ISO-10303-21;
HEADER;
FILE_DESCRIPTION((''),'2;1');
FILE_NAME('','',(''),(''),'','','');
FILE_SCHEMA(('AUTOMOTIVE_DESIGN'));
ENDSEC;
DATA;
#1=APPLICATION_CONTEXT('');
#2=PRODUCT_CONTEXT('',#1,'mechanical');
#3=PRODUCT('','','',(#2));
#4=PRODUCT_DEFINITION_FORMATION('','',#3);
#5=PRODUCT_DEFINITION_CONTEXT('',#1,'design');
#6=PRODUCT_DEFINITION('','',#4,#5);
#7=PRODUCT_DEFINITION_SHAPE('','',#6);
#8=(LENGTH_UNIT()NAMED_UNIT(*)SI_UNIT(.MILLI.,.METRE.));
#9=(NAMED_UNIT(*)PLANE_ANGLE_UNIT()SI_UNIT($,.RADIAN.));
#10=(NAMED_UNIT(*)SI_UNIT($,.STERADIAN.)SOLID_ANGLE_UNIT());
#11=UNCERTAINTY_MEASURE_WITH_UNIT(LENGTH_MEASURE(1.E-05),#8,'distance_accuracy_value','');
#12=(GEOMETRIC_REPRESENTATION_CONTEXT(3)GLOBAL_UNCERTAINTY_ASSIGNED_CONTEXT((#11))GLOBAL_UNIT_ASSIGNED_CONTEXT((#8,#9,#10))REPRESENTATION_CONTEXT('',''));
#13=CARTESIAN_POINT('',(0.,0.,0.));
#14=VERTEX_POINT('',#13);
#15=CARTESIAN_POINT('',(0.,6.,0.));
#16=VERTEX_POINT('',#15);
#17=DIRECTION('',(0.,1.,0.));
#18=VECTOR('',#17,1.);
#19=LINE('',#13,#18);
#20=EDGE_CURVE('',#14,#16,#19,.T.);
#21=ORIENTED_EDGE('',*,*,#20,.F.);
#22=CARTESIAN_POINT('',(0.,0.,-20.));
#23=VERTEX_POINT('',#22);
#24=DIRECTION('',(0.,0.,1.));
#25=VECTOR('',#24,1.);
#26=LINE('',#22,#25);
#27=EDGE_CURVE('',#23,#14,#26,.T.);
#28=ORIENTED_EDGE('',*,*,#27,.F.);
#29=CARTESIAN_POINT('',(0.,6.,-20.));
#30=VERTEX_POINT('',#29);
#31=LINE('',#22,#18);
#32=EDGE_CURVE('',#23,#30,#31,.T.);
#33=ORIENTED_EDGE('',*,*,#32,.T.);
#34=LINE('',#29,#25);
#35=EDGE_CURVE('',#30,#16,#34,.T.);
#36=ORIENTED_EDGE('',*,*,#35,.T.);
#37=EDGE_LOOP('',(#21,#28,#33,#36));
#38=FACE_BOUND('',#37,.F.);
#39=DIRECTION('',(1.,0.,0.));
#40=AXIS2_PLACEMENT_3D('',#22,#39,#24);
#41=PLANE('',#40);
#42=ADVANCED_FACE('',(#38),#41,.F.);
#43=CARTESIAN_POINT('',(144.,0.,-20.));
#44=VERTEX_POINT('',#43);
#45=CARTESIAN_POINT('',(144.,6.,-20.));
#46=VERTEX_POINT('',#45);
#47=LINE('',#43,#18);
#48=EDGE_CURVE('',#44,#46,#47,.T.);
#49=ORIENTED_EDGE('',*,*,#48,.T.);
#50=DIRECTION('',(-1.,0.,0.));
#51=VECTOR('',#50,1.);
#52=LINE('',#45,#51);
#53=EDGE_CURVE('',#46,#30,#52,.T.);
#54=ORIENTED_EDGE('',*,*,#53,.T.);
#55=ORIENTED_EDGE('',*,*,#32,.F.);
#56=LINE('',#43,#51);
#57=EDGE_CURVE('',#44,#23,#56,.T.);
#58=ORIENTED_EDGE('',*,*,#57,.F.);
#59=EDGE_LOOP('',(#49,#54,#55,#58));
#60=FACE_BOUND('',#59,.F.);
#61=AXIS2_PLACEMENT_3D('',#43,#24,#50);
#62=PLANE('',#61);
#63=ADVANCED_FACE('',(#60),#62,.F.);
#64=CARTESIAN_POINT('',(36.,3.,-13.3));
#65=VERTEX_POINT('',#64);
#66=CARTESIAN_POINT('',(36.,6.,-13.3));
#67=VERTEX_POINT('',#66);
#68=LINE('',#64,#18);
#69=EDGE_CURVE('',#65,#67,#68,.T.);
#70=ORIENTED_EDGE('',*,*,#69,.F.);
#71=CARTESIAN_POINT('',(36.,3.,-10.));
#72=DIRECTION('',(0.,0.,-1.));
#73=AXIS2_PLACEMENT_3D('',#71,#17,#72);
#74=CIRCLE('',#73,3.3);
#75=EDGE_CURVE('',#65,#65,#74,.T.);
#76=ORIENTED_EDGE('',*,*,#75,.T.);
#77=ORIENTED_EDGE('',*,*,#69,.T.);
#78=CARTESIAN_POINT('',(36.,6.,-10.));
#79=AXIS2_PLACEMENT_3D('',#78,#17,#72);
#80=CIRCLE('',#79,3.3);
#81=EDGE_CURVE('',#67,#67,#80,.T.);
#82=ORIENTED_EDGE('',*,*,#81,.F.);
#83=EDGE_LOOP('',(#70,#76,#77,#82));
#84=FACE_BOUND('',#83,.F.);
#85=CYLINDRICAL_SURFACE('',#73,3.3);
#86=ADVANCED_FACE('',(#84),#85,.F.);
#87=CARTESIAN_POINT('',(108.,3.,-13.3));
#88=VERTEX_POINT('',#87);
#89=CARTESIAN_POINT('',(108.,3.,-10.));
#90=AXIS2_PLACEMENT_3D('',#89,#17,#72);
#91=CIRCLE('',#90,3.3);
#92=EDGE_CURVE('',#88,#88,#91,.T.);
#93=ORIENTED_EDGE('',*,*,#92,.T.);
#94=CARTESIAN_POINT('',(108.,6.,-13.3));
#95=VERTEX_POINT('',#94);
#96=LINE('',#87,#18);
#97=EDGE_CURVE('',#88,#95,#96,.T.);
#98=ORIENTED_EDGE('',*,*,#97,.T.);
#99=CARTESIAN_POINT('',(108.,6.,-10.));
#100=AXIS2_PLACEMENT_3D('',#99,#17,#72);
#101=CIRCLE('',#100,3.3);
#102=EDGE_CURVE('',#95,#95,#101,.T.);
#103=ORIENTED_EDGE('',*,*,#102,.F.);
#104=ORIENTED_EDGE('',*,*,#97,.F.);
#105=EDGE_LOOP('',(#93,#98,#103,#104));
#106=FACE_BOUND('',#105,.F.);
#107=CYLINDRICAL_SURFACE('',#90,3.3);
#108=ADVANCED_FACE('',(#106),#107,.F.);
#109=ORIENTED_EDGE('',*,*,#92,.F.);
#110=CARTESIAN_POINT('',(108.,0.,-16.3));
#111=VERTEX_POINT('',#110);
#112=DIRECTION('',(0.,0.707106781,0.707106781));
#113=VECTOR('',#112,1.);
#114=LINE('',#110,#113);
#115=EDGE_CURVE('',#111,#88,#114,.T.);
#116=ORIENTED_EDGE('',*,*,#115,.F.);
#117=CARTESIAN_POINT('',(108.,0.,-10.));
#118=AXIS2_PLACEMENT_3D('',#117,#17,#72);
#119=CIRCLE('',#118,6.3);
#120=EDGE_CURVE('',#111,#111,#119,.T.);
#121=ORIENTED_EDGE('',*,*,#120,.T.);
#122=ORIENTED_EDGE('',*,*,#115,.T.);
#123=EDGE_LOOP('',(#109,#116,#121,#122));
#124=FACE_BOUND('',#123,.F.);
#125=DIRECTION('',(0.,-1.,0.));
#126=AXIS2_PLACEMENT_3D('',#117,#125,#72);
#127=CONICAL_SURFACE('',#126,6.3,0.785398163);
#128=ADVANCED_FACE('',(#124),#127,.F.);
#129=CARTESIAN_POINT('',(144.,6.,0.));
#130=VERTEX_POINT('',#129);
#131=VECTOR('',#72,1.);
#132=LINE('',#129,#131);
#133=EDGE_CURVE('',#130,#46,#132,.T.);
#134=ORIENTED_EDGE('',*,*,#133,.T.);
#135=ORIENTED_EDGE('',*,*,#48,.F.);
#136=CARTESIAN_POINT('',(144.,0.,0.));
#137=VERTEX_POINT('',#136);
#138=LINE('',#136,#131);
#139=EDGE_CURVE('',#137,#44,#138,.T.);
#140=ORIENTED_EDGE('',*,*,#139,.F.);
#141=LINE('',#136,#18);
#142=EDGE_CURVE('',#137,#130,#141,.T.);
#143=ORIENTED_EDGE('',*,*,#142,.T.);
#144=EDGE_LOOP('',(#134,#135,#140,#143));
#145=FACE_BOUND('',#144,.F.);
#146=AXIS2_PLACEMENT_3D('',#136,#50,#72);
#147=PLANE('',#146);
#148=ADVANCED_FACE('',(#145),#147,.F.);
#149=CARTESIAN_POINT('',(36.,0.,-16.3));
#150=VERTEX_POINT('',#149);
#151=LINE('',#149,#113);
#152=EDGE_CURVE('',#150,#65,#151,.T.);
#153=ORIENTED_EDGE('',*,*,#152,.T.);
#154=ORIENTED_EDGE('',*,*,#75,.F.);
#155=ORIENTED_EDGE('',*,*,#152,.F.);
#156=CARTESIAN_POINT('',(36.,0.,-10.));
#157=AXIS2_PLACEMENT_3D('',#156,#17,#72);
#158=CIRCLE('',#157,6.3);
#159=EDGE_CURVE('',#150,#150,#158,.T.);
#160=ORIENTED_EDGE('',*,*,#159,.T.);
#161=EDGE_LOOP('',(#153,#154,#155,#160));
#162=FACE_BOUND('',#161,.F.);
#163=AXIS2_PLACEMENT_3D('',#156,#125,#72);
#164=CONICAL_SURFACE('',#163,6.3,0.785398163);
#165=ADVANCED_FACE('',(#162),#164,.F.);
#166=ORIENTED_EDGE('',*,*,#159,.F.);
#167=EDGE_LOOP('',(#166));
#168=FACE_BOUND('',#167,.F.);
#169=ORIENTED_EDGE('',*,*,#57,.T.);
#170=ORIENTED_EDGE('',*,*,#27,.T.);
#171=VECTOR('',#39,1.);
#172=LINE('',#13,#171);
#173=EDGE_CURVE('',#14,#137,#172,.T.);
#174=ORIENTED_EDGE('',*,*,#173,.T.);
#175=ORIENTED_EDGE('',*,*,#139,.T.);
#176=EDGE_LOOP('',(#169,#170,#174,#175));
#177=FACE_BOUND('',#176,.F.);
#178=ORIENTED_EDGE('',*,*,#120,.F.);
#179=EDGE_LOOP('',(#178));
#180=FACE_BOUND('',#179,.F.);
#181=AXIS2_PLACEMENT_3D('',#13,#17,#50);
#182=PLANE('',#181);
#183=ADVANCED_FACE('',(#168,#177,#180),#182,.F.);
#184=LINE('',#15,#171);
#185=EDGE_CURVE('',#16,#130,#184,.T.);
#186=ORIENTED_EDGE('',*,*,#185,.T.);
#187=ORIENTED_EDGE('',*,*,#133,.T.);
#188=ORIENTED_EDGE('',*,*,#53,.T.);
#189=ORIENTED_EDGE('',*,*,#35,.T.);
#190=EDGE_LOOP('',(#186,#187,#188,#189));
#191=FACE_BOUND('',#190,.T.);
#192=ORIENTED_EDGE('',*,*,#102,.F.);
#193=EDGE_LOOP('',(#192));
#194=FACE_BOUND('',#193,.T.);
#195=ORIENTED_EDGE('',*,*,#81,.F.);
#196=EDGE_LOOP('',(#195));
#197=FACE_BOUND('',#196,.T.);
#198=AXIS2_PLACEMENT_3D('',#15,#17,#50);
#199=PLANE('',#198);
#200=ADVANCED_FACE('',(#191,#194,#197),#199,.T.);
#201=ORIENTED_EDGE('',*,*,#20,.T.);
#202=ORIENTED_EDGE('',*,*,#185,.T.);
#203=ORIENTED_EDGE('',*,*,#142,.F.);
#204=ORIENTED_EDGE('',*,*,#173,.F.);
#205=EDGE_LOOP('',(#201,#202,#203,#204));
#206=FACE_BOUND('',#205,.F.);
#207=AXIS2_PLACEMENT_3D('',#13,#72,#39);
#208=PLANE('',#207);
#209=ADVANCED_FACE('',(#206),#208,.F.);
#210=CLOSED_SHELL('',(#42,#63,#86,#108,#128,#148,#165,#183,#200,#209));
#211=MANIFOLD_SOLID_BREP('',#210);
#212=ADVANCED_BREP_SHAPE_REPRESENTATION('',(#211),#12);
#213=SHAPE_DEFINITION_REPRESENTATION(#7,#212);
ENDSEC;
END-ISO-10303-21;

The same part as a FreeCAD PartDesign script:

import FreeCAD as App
import Part
import Sketcher

V = App.Vector


def add_polygon(sketch, points):
    """Adds a closed chain of lines whose ends are joined by coincident constraints."""
    first, n = sketch.GeometryCount, len(points)
    for a, b in zip(points, points[1:] + points[:1]):
        sketch.addGeometry(Part.LineSegment(App.Vector(*a, 0), App.Vector(*b, 0)), False)
    for i in range(n):
        sketch.addConstraint(Sketcher.Constraint("Coincident", first + i, 2, first + (i + 1) % n, 1))

doc = App.newDocument("Part")
body = doc.addObject("PartDesign::Body", "Body")

sketch1 = doc.addObject("Sketcher::SketchObject", "Sketch")
body.addObject(sketch1)
sketch1.AttachmentSupport = (doc.XZ_Plane, [""])
sketch1.MapMode = "FlatFace"
add_polygon(sketch1, [(0, -20), (0, 0), (144, 0), (144, -20)])
sketch1.addConstraint([
    Sketcher.Constraint("Vertical", 0),
    Sketcher.Constraint("Horizontal", 1),
    Sketcher.Constraint("Vertical", 2),
    Sketcher.Constraint("Horizontal", 3),
    Sketcher.Constraint("Coincident", 0, 2, -1, 1),
    Sketcher.Constraint("DistanceX", 1, 1, 1, 2, 144.0),
    Sketcher.Constraint("DistanceY", 0, 1, 0, 2, 20.0),
])
pad1 = doc.addObject("PartDesign::Pad", "Pad")
body.addObject(pad1)
pad1.Profile = sketch1
pad1.Length = 6
pad1.Reversed = True

sketch2 = doc.addObject("Sketcher::SketchObject", "Sketch001")
body.addObject(sketch2)
sketch2.AttachmentSupport = (doc.XZ_Plane, [""])
sketch2.MapMode = "FlatFace"
sketch2.addGeometry([
    Part.Circle(V(36, -10, 0), V(0, 0, 1), 3.3),
    Part.Circle(V(108, -10, 0), V(0, 0, 1), 3.3),
], False)
sketch2.addConstraint([
    Sketcher.Constraint("Equal", 0, 1),
    Sketcher.Constraint("Horizontal", 0, 3, 1, 3),
    Sketcher.Constraint("Diameter", 0, 6.6),
    Sketcher.Constraint("DistanceX", -1, 1, 0, 3, 36.0),
    Sketcher.Constraint("DistanceY", 0, 3, -1, 1, 10.0),
    Sketcher.Constraint("DistanceX", -1, 1, 1, 3, 108.0),
])
doc.recompute()
hole = doc.addObject("PartDesign::Hole", "Hole")
body.addObject(hole)
hole.Profile = sketch2
hole.ThreadType = "None"
hole.Diameter = 6.6
hole.DepthType = "ThroughAll"
hole.HoleCutType = "Countersink"
hole.HoleCutDiameter = 12.6
hole.HoleCutCountersinkAngle = 90

doc.recompute()
